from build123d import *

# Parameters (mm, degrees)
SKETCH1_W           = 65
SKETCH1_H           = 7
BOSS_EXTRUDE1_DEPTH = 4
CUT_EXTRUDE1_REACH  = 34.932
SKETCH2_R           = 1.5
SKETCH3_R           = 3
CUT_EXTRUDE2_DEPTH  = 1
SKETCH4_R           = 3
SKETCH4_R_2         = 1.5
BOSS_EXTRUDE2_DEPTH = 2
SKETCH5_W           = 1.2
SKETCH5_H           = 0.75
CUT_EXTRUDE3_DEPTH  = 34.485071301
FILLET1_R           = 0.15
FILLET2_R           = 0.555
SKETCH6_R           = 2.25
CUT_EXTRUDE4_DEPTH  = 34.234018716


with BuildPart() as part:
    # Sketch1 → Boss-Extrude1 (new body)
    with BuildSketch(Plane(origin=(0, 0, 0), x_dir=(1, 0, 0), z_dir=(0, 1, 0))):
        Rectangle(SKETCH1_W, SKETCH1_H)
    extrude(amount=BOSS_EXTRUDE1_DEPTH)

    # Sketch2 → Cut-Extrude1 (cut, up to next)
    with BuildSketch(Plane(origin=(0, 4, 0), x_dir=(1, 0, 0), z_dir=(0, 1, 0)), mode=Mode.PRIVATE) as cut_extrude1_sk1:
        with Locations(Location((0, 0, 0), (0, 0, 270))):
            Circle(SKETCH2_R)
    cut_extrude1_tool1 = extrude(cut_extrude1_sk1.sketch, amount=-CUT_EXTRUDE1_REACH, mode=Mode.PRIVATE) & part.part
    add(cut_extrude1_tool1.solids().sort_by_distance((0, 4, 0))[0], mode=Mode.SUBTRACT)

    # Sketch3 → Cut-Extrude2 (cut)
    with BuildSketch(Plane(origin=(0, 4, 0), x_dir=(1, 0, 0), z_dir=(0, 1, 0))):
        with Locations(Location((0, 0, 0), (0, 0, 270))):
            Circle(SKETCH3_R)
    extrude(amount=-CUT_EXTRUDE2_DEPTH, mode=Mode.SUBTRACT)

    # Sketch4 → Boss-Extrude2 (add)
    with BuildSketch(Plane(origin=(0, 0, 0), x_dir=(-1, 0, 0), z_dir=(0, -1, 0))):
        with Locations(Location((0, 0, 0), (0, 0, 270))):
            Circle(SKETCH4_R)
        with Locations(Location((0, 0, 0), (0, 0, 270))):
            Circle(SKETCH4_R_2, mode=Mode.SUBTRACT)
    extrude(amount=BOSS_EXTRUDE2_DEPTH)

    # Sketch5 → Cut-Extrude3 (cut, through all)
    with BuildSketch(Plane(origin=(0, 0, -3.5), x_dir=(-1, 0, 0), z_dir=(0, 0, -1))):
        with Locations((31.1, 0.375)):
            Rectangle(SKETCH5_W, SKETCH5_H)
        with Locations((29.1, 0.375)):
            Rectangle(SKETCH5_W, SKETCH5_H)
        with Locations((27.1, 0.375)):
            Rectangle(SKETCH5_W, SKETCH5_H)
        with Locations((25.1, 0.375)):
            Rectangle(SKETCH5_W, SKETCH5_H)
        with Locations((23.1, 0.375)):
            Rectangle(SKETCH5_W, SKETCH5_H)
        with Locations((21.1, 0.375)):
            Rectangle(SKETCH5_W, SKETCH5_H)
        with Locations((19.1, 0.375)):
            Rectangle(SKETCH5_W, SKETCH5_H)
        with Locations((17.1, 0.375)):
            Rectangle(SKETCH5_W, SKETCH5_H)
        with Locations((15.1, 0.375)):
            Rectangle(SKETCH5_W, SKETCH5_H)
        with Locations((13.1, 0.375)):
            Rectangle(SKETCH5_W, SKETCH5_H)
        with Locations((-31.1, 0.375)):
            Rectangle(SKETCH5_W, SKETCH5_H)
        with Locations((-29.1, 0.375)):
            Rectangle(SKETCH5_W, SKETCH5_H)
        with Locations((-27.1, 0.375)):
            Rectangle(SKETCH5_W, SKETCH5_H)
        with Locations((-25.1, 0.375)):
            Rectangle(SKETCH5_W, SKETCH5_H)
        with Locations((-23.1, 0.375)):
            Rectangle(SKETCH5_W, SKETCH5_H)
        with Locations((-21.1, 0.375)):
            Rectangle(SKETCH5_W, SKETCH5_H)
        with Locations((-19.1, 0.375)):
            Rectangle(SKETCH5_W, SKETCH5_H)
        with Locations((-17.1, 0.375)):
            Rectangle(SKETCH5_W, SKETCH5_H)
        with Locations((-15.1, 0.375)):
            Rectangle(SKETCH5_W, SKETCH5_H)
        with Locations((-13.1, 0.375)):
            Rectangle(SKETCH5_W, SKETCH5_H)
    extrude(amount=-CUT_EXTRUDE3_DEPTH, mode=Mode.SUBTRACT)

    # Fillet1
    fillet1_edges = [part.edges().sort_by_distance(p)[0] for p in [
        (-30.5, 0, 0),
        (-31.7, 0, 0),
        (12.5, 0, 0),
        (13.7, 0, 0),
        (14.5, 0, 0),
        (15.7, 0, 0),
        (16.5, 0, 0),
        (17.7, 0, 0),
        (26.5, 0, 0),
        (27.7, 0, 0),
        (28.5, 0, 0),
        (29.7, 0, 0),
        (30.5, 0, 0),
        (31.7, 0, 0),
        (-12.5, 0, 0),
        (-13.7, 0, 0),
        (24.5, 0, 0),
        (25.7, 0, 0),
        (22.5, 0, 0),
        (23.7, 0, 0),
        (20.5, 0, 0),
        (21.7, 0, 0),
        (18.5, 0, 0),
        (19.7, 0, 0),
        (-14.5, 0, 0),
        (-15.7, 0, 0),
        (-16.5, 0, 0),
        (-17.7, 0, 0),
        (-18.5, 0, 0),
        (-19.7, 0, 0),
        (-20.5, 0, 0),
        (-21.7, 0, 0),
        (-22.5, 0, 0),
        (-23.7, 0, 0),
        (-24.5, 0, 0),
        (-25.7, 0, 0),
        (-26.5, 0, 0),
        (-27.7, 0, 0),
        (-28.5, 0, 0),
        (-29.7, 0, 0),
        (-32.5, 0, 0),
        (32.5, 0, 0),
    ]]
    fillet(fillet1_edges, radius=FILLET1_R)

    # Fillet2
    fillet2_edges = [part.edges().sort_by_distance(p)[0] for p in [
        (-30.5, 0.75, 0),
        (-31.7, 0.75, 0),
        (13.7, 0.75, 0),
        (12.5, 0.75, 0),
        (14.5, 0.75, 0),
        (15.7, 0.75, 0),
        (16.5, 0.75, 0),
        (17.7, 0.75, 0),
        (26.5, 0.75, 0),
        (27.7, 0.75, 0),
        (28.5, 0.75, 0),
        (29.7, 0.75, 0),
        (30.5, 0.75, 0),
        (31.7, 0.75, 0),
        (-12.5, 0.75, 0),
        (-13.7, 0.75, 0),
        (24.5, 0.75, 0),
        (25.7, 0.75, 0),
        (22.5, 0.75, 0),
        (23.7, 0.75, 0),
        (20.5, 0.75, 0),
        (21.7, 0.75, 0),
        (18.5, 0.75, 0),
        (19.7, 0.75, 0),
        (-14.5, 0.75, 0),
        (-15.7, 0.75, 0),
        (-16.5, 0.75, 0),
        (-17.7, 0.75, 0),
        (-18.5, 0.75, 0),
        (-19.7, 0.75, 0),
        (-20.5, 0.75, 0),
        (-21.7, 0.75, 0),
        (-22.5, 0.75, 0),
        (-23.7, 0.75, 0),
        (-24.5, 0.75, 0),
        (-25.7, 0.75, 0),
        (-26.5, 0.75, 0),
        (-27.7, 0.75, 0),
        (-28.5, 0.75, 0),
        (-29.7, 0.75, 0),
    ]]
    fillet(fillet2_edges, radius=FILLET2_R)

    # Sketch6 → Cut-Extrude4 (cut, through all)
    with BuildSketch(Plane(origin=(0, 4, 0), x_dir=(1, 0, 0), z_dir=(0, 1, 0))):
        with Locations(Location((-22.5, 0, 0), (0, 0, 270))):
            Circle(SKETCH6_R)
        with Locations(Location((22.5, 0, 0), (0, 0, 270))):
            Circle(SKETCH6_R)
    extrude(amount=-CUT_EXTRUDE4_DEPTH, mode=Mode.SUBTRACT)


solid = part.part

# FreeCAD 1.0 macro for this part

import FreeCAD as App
import Part
import Sketcher


def edges_at(feature, points):
    """Names of the edges that pass closest to the given points."""
    edges = feature.Shape.Edges
    near = lambda p: min(range(len(edges)), key=lambda i: edges[i].distToShape(Part.Vertex(*p))[0])
    return sorted({f"Edge{near(p) + 1}" for p in points})

doc = App.newDocument("Part")
body = doc.addObject("PartDesign::Body", "Body")

# Sketch on XZ plane
sketch1 = body.newObject("Sketcher::SketchObject", "Sketch")
sketch1.AttachmentSupport = (doc.getObject("XZ_Plane"), [""])
sketch1.MapMode = "FlatFace"
sketch1.addGeometry([
    Part.LineSegment(App.Vector(-32, -4, 0), App.Vector(-32, 4, 0)),
    Part.LineSegment(App.Vector(-32, 4, 0), App.Vector(32, 4, 0)),
    Part.LineSegment(App.Vector(32, 4, 0), App.Vector(32, -4, 0)),
    Part.LineSegment(App.Vector(32, -4, 0), App.Vector(-32, -4, 0)),
], False)
sketch1.addConstraint([
    Sketcher.Constraint("Coincident", 0, 2, 1, 1),
    Sketcher.Constraint("Coincident", 1, 2, 2, 1),
    Sketcher.Constraint("Coincident", 2, 2, 3, 1),
    Sketcher.Constraint("Coincident", 3, 2, 0, 1),
    Sketcher.Constraint("Vertical", 0),
    Sketcher.Constraint("Horizontal", 1),
    Sketcher.Constraint("Vertical", 2),
    Sketcher.Constraint("Horizontal", 3),
    Sketcher.Constraint("Symmetric", 0, 2, 2, 2, -1, 1),
    Sketcher.Constraint("DistanceX", 1, 1, 1, 2, 65.0),
    Sketcher.Constraint("DistanceY", 0, 1, 0, 2, 7.0),
])
pad1 = body.newObject("PartDesign::Pad", "Pad")
pad1.Profile = sketch1
pad1.Length = 4
pad1.Reversed = True

# Sketch on XZ plane
sketch2 = body.newObject("Sketcher::SketchObject", "Sketch001")
sketch2.AttachmentSupport = (doc.getObject("XZ_Plane"), [""])
sketch2.MapMode = "FlatFace"
sketch2.AttachmentOffset = App.Placement(App.Vector(0, 0, -4), App.Rotation())
sketch2.addGeometry(Part.Circle(App.Vector(0, 0, 0), App.Vector(0, 0, 1), 1.5), False)
sketch2.addConstraint([
    Sketcher.Constraint("Coincident", 0, 3, -1, 1),
    Sketcher.Constraint("Diameter", 0, 3.0),
])
pocket1 = body.newObject("PartDesign::Pocket", "Pocket")
pocket1.Profile = sketch2
pocket1.Type = "UpToFirst"
pocket1.Reversed = True

# Sketch on XZ plane
sketch3 = body.newObject("Sketcher::SketchObject", "Sketch002")
sketch3.AttachmentSupport = (doc.getObject("XZ_Plane"), [""])
sketch3.MapMode = "FlatFace"
sketch3.AttachmentOffset = App.Placement(App.Vector(0, 0, -4), App.Rotation())
sketch3.addGeometry(Part.Circle(App.Vector(0, 0, 0), App.Vector(0, 0, 1), 3), False)
sketch3.addConstraint([
    Sketcher.Constraint("Coincident", 0, 3, -1, 1),
    Sketcher.Constraint("Diameter", 0, 6.0),
])
pocket2 = body.newObject("PartDesign::Pocket", "Pocket001")
pocket2.Profile = sketch3
pocket2.Length = 1
pocket2.Reversed = True

# Sketch on XZ plane
sketch4 = body.newObject("Sketcher::SketchObject", "Sketch003")
sketch4.AttachmentSupport = (doc.getObject("XZ_Plane"), [""])
sketch4.MapMode = "FlatFace"
sketch4.addGeometry([
    Part.Circle(App.Vector(0, 0, 0), App.Vector(0, 0, 1), 3),
    Part.Circle(App.Vector(0, 0, 0), App.Vector(0, 0, 1), 1.5),
], False)
sketch4.addConstraint([
    Sketcher.Constraint("Coincident", 0, 3, -1, 1),
    Sketcher.Constraint("Coincident", 1, 3, -1, 1),
    Sketcher.Constraint("Diameter", 0, 6.0),
    Sketcher.Constraint("Diameter", 1, 3.0),
])
pad2 = body.newObject("PartDesign::Pad", "Pad001")
pad2.Profile = sketch4
pad2.Length = 2

# Sketch on XY plane
sketch5 = body.newObject("Sketcher::SketchObject", "Sketch004")
sketch5.AttachmentSupport = (doc.getObject("XY_Plane"), [""])
sketch5.MapMode = "FlatFace"
sketch5.AttachmentOffset = App.Placement(App.Vector(0, 0, -3.5), App.Rotation())
sketch5.addGeometry([
    Part.LineSegment(App.Vector(-30.5, 0.8, 0), App.Vector(-30.5, 0, 0)),  # 0
    Part.LineSegment(App.Vector(-30.5, 0, 0), App.Vector(-31.7, 0, 0)),  # 1
    Part.LineSegment(App.Vector(-31.7, 0, 0), App.Vector(-31.7, 0.8, 0)),  # 2
    Part.LineSegment(App.Vector(-31.7, 0.8, 0), App.Vector(-30.5, 0.8, 0)),  # 3
    Part.LineSegment(App.Vector(-28.5, 0.8, 0), App.Vector(-28.5, 0, 0)),  # 4
    Part.LineSegment(App.Vector(-28.5, 0, 0), App.Vector(-29.7, 0, 0)),  # 5
    Part.LineSegment(App.Vector(-29.7, 0, 0), App.Vector(-29.7, 0.8, 0)),  # 6
    Part.LineSegment(App.Vector(-29.7, 0.8, 0), App.Vector(-28.5, 0.8, 0)),  # 7
    Part.LineSegment(App.Vector(-26.5, 0.8, 0), App.Vector(-26.5, 0, 0)),  # 8
    Part.LineSegment(App.Vector(-26.5, 0, 0), App.Vector(-27.7, 0, 0)),  # 9
    Part.LineSegment(App.Vector(-27.7, 0, 0), App.Vector(-27.7, 0.8, 0)),  # 10
    Part.LineSegment(App.Vector(-27.7, 0.8, 0), App.Vector(-26.5, 0.8, 0)),  # 11
    Part.LineSegment(App.Vector(-24.5, 0.8, 0), App.Vector(-24.5, 0, 0)),  # 12
    Part.LineSegment(App.Vector(-24.5, 0, 0), App.Vector(-25.7, 0, 0)),  # 13
    Part.LineSegment(App.Vector(-25.7, 0, 0), App.Vector(-25.7, 0.8, 0)),  # 14
    Part.LineSegment(App.Vector(-25.7, 0.8, 0), App.Vector(-24.5, 0.8, 0)),  # 15
    Part.LineSegment(App.Vector(-22.5, 0.8, 0), App.Vector(-22.5, 0, 0)),  # 16
    Part.LineSegment(App.Vector(-22.5, 0, 0), App.Vector(-23.7, 0, 0)),  # 17
    Part.LineSegment(App.Vector(-23.7, 0, 0), App.Vector(-23.7, 0.8, 0)),  # 18
    Part.LineSegment(App.Vector(-23.7, 0.8, 0), App.Vector(-22.5, 0.8, 0)),  # 19
    Part.LineSegment(App.Vector(-20.5, 0.8, 0), App.Vector(-20.5, 0, 0)),  # 20
    Part.LineSegment(App.Vector(-20.5, 0, 0), App.Vector(-21.7, 0, 0)),  # 21
    Part.LineSegment(App.Vector(-21.7, 0, 0), App.Vector(-21.7, 0.8, 0)),  # 22
    Part.LineSegment(App.Vector(-21.7, 0.8, 0), App.Vector(-20.5, 0.8, 0)),  # 23
    Part.LineSegment(App.Vector(-18.5, 0.8, 0), App.Vector(-18.5, 0, 0)),  # 24
    Part.LineSegment(App.Vector(-18.5, 0, 0), App.Vector(-19.7, 0, 0)),  # 25
    Part.LineSegment(App.Vector(-19.7, 0, 0), App.Vector(-19.7, 0.8, 0)),  # 26
    Part.LineSegment(App.Vector(-19.7, 0.8, 0), App.Vector(-18.5, 0.8, 0)),  # 27
    Part.LineSegment(App.Vector(-16.5, 0.8, 0), App.Vector(-16.5, 0, 0)),  # 28
    Part.LineSegment(App.Vector(-16.5, 0, 0), App.Vector(-17.7, 0, 0)),  # 29
    Part.LineSegment(App.Vector(-17.7, 0, 0), App.Vector(-17.7, 0.8, 0)),  # 30
    Part.LineSegment(App.Vector(-17.7, 0.8, 0), App.Vector(-16.5, 0.8, 0)),  # 31
    Part.LineSegment(App.Vector(-14.5, 0.8, 0), App.Vector(-14.5, 0, 0)),  # 32
    Part.LineSegment(App.Vector(-14.5, 0, 0), App.Vector(-15.7, 0, 0)),  # 33
    Part.LineSegment(App.Vector(-15.7, 0, 0), App.Vector(-15.7, 0.8, 0)),  # 34
    Part.LineSegment(App.Vector(-15.7, 0.8, 0), App.Vector(-14.5, 0.8, 0)),  # 35
    Part.LineSegment(App.Vector(-12.5, 0.8, 0), App.Vector(-12.5, 0, 0)),  # 36
    Part.LineSegment(App.Vector(-12.5, 0, 0), App.Vector(-13.7, 0, 0)),  # 37
    Part.LineSegment(App.Vector(-13.7, 0, 0), App.Vector(-13.7, 0.8, 0)),  # 38
    Part.LineSegment(App.Vector(-13.7, 0.8, 0), App.Vector(-12.5, 0.8, 0)),  # 39
    Part.LineSegment(App.Vector(31.7, 0.8, 0), App.Vector(31.7, 0, 0)),  # 40
    Part.LineSegment(App.Vector(31.7, 0, 0), App.Vector(30.5, 0, 0)),  # 41
    Part.LineSegment(App.Vector(30.5, 0, 0), App.Vector(30.5, 0.8, 0)),  # 42
    Part.LineSegment(App.Vector(30.5, 0.8, 0), App.Vector(31.7, 0.8, 0)),  # 43
    Part.LineSegment(App.Vector(29.7, 0.8, 0), App.Vector(29.7, 0, 0)),  # 44
    Part.LineSegment(App.Vector(29.7, 0, 0), App.Vector(28.5, 0, 0)),  # 45
    Part.LineSegment(App.Vector(28.5, 0, 0), App.Vector(28.5, 0.8, 0)),  # 46
    Part.LineSegment(App.Vector(28.5, 0.8, 0), App.Vector(29.7, 0.8, 0)),  # 47
    Part.LineSegment(App.Vector(27.7, 0.8, 0), App.Vector(27.7, 0, 0)),  # 48
    Part.LineSegment(App.Vector(27.7, 0, 0), App.Vector(26.5, 0, 0)),  # 49
    Part.LineSegment(App.Vector(26.5, 0, 0), App.Vector(26.5, 0.8, 0)),  # 50
    Part.LineSegment(App.Vector(26.5, 0.8, 0), App.Vector(27.7, 0.8, 0)),  # 51
    Part.LineSegment(App.Vector(25.7, 0.8, 0), App.Vector(25.7, 0, 0)),  # 52
    Part.LineSegment(App.Vector(25.7, 0, 0), App.Vector(24.5, 0, 0)),  # 53
    Part.LineSegment(App.Vector(24.5, 0, 0), App.Vector(24.5, 0.8, 0)),  # 54
    Part.LineSegment(App.Vector(24.5, 0.8, 0), App.Vector(25.7, 0.8, 0)),  # 55
    Part.LineSegment(App.Vector(23.7, 0.8, 0), App.Vector(23.7, 0, 0)),  # 56
    Part.LineSegment(App.Vector(23.7, 0, 0), App.Vector(22.5, 0, 0)),  # 57
    Part.LineSegment(App.Vector(22.5, 0, 0), App.Vector(22.5, 0.8, 0)),  # 58
    Part.LineSegment(App.Vector(22.5, 0.8, 0), App.Vector(23.7, 0.8, 0)),  # 59
    Part.LineSegment(App.Vector(21.7, 0.8, 0), App.Vector(21.7, 0, 0)),  # 60
    Part.LineSegment(App.Vector(21.7, 0, 0), App.Vector(20.5, 0, 0)),  # 61
    Part.LineSegment(App.Vector(20.5, 0, 0), App.Vector(20.5, 0.8, 0)),  # 62
    Part.LineSegment(App.Vector(20.5, 0.8, 0), App.Vector(21.7, 0.8, 0)),  # 63
    Part.LineSegment(App.Vector(19.7, 0.8, 0), App.Vector(19.7, 0, 0)),  # 64
    Part.LineSegment(App.Vector(19.7, 0, 0), App.Vector(18.5, 0, 0)),  # 65
    Part.LineSegment(App.Vector(18.5, 0, 0), App.Vector(18.5, 0.8, 0)),  # 66
    Part.LineSegment(App.Vector(18.5, 0.8, 0), App.Vector(19.7, 0.8, 0)),  # 67
    Part.LineSegment(App.Vector(17.7, 0.8, 0), App.Vector(17.7, 0, 0)),  # 68
    Part.LineSegment(App.Vector(17.7, 0, 0), App.Vector(16.5, 0, 0)),  # 69
    Part.LineSegment(App.Vector(16.5, 0, 0), App.Vector(16.5, 0.8, 0)),  # 70
    Part.LineSegment(App.Vector(16.5, 0.8, 0), App.Vector(17.7, 0.8, 0)),  # 71
    Part.LineSegment(App.Vector(15.7, 0.8, 0), App.Vector(15.7, 0, 0)),  # 72
    Part.LineSegment(App.Vector(15.7, 0, 0), App.Vector(14.5, 0, 0)),  # 73
    Part.LineSegment(App.Vector(14.5, 0, 0), App.Vector(14.5, 0.8, 0)),  # 74
    Part.LineSegment(App.Vector(14.5, 0.8, 0), App.Vector(15.7, 0.8, 0)),  # 75
    Part.LineSegment(App.Vector(13.7, 0.8, 0), App.Vector(13.7, 0, 0)),  # 76
    Part.LineSegment(App.Vector(13.7, 0, 0), App.Vector(12.5, 0, 0)),  # 77
    Part.LineSegment(App.Vector(12.5, 0, 0), App.Vector(12.5, 0.8, 0)),  # 78
    Part.LineSegment(App.Vector(12.5, 0.8, 0), App.Vector(13.7, 0.8, 0)),  # 79
], False)
sketch5.addConstraint([
    Sketcher.Constraint("Coincident", 0, 2, 1, 1),
    Sketcher.Constraint("Coincident", 1, 2, 2, 1),
    Sketcher.Constraint("Coincident", 2, 2, 3, 1),
    Sketcher.Constraint("Coincident", 3, 2, 0, 1),
    Sketcher.Constraint("Coincident", 4, 2, 5, 1),
    Sketcher.Constraint("Coincident", 5, 2, 6, 1),
    Sketcher.Constraint("Coincident", 6, 2, 7, 1),
    Sketcher.Constraint("Coincident", 7, 2, 4, 1),
    Sketcher.Constraint("Coincident", 8, 2, 9, 1),
    Sketcher.Constraint("Coincident", 9, 2, 10, 1),
    Sketcher.Constraint("Coincident", 10, 2, 11, 1),
    Sketcher.Constraint("Coincident", 11, 2, 8, 1),
    Sketcher.Constraint("Coincident", 12, 2, 13, 1),
    Sketcher.Constraint("Coincident", 13, 2, 14, 1),
    Sketcher.Constraint("Coincident", 14, 2, 15, 1),
    Sketcher.Constraint("Coincident", 15, 2, 12, 1),
    Sketcher.Constraint("Coincident", 16, 2, 17, 1),
    Sketcher.Constraint("Coincident", 17, 2, 18, 1),
    Sketcher.Constraint("Coincident", 18, 2, 19, 1),
    Sketcher.Constraint("Coincident", 19, 2, 16, 1),
    Sketcher.Constraint("Coincident", 20, 2, 21, 1),
    Sketcher.Constraint("Coincident", 21, 2, 22, 1),
    Sketcher.Constraint("Coincident", 22, 2, 23, 1),
    Sketcher.Constraint("Coincident", 23, 2, 20, 1),
    Sketcher.Constraint("Coincident", 24, 2, 25, 1),
    Sketcher.Constraint("Coincident", 25, 2, 26, 1),
    Sketcher.Constraint("Coincident", 26, 2, 27, 1),
    Sketcher.Constraint("Coincident", 27, 2, 24, 1),
    Sketcher.Constraint("Coincident", 28, 2, 29, 1),
    Sketcher.Constraint("Coincident", 29, 2, 30, 1),
    Sketcher.Constraint("Coincident", 30, 2, 31, 1),
    Sketcher.Constraint("Coincident", 31, 2, 28, 1),
    Sketcher.Constraint("Coincident", 32, 2, 33, 1),
    Sketcher.Constraint("Coincident", 33, 2, 34, 1),
    Sketcher.Constraint("Coincident", 34, 2, 35, 1),
    Sketcher.Constraint("Coincident", 35, 2, 32, 1),
    Sketcher.Constraint("Coincident", 36, 2, 37, 1),
    Sketcher.Constraint("Coincident", 37, 2, 38, 1),
    Sketcher.Constraint("Coincident", 38, 2, 39, 1),
    Sketcher.Constraint("Coincident", 39, 2, 36, 1),
    Sketcher.Constraint("Coincident", 40, 2, 41, 1),
    Sketcher.Constraint("Coincident", 41, 2, 42, 1),
    Sketcher.Constraint("Coincident", 42, 2, 43, 1),
    Sketcher.Constraint("Coincident", 43, 2, 40, 1),
    Sketcher.Constraint("Coincident", 44, 2, 45, 1),
    Sketcher.Constraint("Coincident", 45, 2, 46, 1),
    Sketcher.Constraint("Coincident", 46, 2, 47, 1),
    Sketcher.Constraint("Coincident", 47, 2, 44, 1),
    Sketcher.Constraint("Coincident", 48, 2, 49, 1),
    Sketcher.Constraint("Coincident", 49, 2, 50, 1),
    Sketcher.Constraint("Coincident", 50, 2, 51, 1),
    Sketcher.Constraint("Coincident", 51, 2, 48, 1),
    Sketcher.Constraint("Coincident", 52, 2, 53, 1),
    Sketcher.Constraint("Coincident", 53, 2, 54, 1),
    Sketcher.Constraint("Coincident", 54, 2, 55, 1),
    Sketcher.Constraint("Coincident", 55, 2, 52, 1),
    Sketcher.Constraint("Coincident", 56, 2, 57, 1),
    Sketcher.Constraint("Coincident", 57, 2, 58, 1),
    Sketcher.Constraint("Coincident", 58, 2, 59, 1),
    Sketcher.Constraint("Coincident", 59, 2, 56, 1),
    Sketcher.Constraint("Coincident", 60, 2, 61, 1),
    Sketcher.Constraint("Coincident", 61, 2, 62, 1),
    Sketcher.Constraint("Coincident", 62, 2, 63, 1),
    Sketcher.Constraint("Coincident", 63, 2, 60, 1),
    Sketcher.Constraint("Coincident", 64, 2, 65, 1),
    Sketcher.Constraint("Coincident", 65, 2, 66, 1),
    Sketcher.Constraint("Coincident", 66, 2, 67, 1),
    Sketcher.Constraint("Coincident", 67, 2, 64, 1),
    Sketcher.Constraint("Coincident", 68, 2, 69, 1),
    Sketcher.Constraint("Coincident", 69, 2, 70, 1),
    Sketcher.Constraint("Coincident", 70, 2, 71, 1),
    Sketcher.Constraint("Coincident", 71, 2, 68, 1),
    Sketcher.Constraint("Coincident", 72, 2, 73, 1),
    Sketcher.Constraint("Coincident", 73, 2, 74, 1),
    Sketcher.Constraint("Coincident", 74, 2, 75, 1),
    Sketcher.Constraint("Coincident", 75, 2, 72, 1),
    Sketcher.Constraint("Coincident", 76, 2, 77, 1),
    Sketcher.Constraint("Coincident", 77, 2, 78, 1),
    Sketcher.Constraint("Coincident", 78, 2, 79, 1),
    Sketcher.Constraint("Coincident", 79, 2, 76, 1),
    Sketcher.Constraint("Vertical", 0),
    Sketcher.Constraint("Horizontal", 1),
    Sketcher.Constraint("Vertical", 2),
    Sketcher.Constraint("Horizontal", 3),
    Sketcher.Constraint("Vertical", 4),
    Sketcher.Constraint("Horizontal", 5),
    Sketcher.Constraint("Vertical", 6),
    Sketcher.Constraint("Horizontal", 7),
    Sketcher.Constraint("Vertical", 8),
    Sketcher.Constraint("Horizontal", 9),
    Sketcher.Constraint("Vertical", 10),
    Sketcher.Constraint("Horizontal", 11),
    Sketcher.Constraint("Vertical", 12),
    Sketcher.Constraint("Horizontal", 13),
    Sketcher.Constraint("Vertical", 14),
    Sketcher.Constraint("Horizontal", 15),
    Sketcher.Constraint("Vertical", 16),
    Sketcher.Constraint("Horizontal", 17),
    Sketcher.Constraint("Vertical", 18),
    Sketcher.Constraint("Horizontal", 19),
    Sketcher.Constraint("Vertical", 20),
    Sketcher.Constraint("Horizontal", 21),
    Sketcher.Constraint("Vertical", 22),
    Sketcher.Constraint("Horizontal", 23),
    Sketcher.Constraint("Vertical", 24),
    Sketcher.Constraint("Horizontal", 25),
    Sketcher.Constraint("Vertical", 26),
    Sketcher.Constraint("Horizontal", 27),
    Sketcher.Constraint("Vertical", 28),
    Sketcher.Constraint("Horizontal", 29),
    Sketcher.Constraint("Vertical", 30),
    Sketcher.Constraint("Horizontal", 31),
    Sketcher.Constraint("Vertical", 32),
    Sketcher.Constraint("Horizontal", 33),
    Sketcher.Constraint("Vertical", 34),
    Sketcher.Constraint("Horizontal", 35),
    Sketcher.Constraint("Vertical", 36),
    Sketcher.Constraint("Horizontal", 37),
    Sketcher.Constraint("Vertical", 38),
    Sketcher.Constraint("Horizontal", 39),
    Sketcher.Constraint("Vertical", 40),
    Sketcher.Constraint("Horizontal", 41),
    Sketcher.Constraint("Vertical", 42),
    Sketcher.Constraint("Horizontal", 43),
    Sketcher.Constraint("Vertical", 44),
    Sketcher.Constraint("Horizontal", 45),
    Sketcher.Constraint("Vertical", 46),
    Sketcher.Constraint("Horizontal", 47),
    Sketcher.Constraint("Vertical", 48),
    Sketcher.Constraint("Horizontal", 49),
    Sketcher.Constraint("Vertical", 50),
    Sketcher.Constraint("Horizontal", 51),
    Sketcher.Constraint("Vertical", 52),
    Sketcher.Constraint("Horizontal", 53),
    Sketcher.Constraint("Vertical", 54),
    Sketcher.Constraint("Horizontal", 55),
    Sketcher.Constraint("Vertical", 56),
    Sketcher.Constraint("Horizontal", 57),
    Sketcher.Constraint("Vertical", 58),
    Sketcher.Constraint("Horizontal", 59),
    Sketcher.Constraint("Vertical", 60),
    Sketcher.Constraint("Horizontal", 61),
    Sketcher.Constraint("Vertical", 62),
    Sketcher.Constraint("Horizontal", 63),
    Sketcher.Constraint("Vertical", 64),
    Sketcher.Constraint("Horizontal", 65),
    Sketcher.Constraint("Vertical", 66),
    Sketcher.Constraint("Horizontal", 67),
    Sketcher.Constraint("Vertical", 68),
    Sketcher.Constraint("Horizontal", 69),
    Sketcher.Constraint("Vertical", 70),
    Sketcher.Constraint("Horizontal", 71),
    Sketcher.Constraint("Vertical", 72),
    Sketcher.Constraint("Horizontal", 73),
    Sketcher.Constraint("Vertical", 74),
    Sketcher.Constraint("Horizontal", 75),
    Sketcher.Constraint("Vertical", 76),
    Sketcher.Constraint("Horizontal", 77),
    Sketcher.Constraint("Vertical", 78),
    Sketcher.Constraint("Horizontal", 79),
    Sketcher.Constraint("Symmetric", 1, 2, 40, 2, -1, 1),
    Sketcher.Constraint("Symmetric", 5, 2, 44, 2, -1, 1),
    Sketcher.Constraint("Symmetric", 9, 2, 48, 2, -1, 1),
    Sketcher.Constraint("Symmetric", 13, 2, 52, 2, -1, 1),
    Sketcher.Constraint("Symmetric", 17, 2, 56, 2, -1, 1),
    Sketcher.Constraint("Symmetric", 21, 2, 60, 2, -1, 1),
    Sketcher.Constraint("Symmetric", 25, 2, 64, 2, -1, 1),
    Sketcher.Constraint("Symmetric", 29, 2, 68, 2, -1, 1),
    Sketcher.Constraint("Symmetric", 33, 2, 72, 2, -1, 1),
    Sketcher.Constraint("Symmetric", 37, 2, 76, 2, -1, 1),
    Sketcher.Constraint("Symmetric", 0, 2, 41, 2, -2),
    Sketcher.Constraint("Symmetric", 4, 2, 45, 2, -2),
    Sketcher.Constraint("Symmetric", 8, 2, 49, 2, -2),
    Sketcher.Constraint("Symmetric", 12, 2, 53, 2, -2),
    Sketcher.Constraint("Symmetric", 16, 2, 57, 2, -2),
    Sketcher.Constraint("Symmetric", 20, 2, 61, 2, -2),
    Sketcher.Constraint("Symmetric", 24, 2, 65, 2, -2),
    Sketcher.Constraint("Symmetric", 28, 2, 69, 2, -2),
    Sketcher.Constraint("Symmetric", 32, 2, 73, 2, -2),
    Sketcher.Constraint("Symmetric", 36, 2, 77, 2, -2),
    Sketcher.Constraint("Horizontal", 3, 2, 6, 2),
    Sketcher.Constraint("Horizontal", 7, 2, 10, 2),
    Sketcher.Constraint("Horizontal", 11, 2, 14, 2),
    Sketcher.Constraint("Horizontal", 15, 2, 18, 2),
    Sketcher.Constraint("Horizontal", 19, 2, 22, 2),
    Sketcher.Constraint("Horizontal", 23, 2, 26, 2),
    Sketcher.Constraint("Horizontal", 27, 2, 30, 2),
    Sketcher.Constraint("Horizontal", 31, 2, 34, 2),
    Sketcher.Constraint("Horizontal", 35, 2, 38, 2),
    Sketcher.Constraint("Horizontal", 39, 2, 42, 2),
    Sketcher.Constraint("Horizontal", 43, 2, 46, 2),
    Sketcher.Constraint("Horizontal", 47, 2, 50, 2),
    Sketcher.Constraint("Horizontal", 51, 2, 54, 2),
    Sketcher.Constraint("Horizontal", 55, 2, 58, 2),
    Sketcher.Constraint("Horizontal", 59, 2, 62, 2),
    Sketcher.Constraint("Horizontal", 63, 2, 66, 2),
    Sketcher.Constraint("Horizontal", 67, 2, 70, 2),
    Sketcher.Constraint("Horizontal", 71, 2, 74, 2),
    Sketcher.Constraint("Horizontal", 75, 2, 78, 2),
    Sketcher.Constraint("Equal", 3, 5),
    Sketcher.Constraint("Equal", 7, 9),
    Sketcher.Constraint("Equal", 11, 13),
    Sketcher.Constraint("Equal", 15, 17),
    Sketcher.Constraint("Equal", 19, 21),
    Sketcher.Constraint("Equal", 23, 25),
    Sketcher.Constraint("Equal", 27, 29),
    Sketcher.Constraint("Equal", 31, 33),
    Sketcher.Constraint("Equal", 35, 37),
    Sketcher.Constraint("DistanceX", 1, 2, 1, 1, 1.2),
    Sketcher.Constraint("DistanceY", 0, 2, 0, 1, 0.75),
    Sketcher.Constraint("DistanceX", 0, 2, -1, 1, 30.5),
    Sketcher.Constraint("DistanceX", 4, 2, -1, 1, 28.5),
    Sketcher.Constraint("DistanceX", 8, 2, -1, 1, 26.5),
    Sketcher.Constraint("DistanceX", 12, 2, -1, 1, 24.5),
    Sketcher.Constraint("DistanceX", 16, 2, -1, 1, 22.5),
    Sketcher.Constraint("DistanceX", 20, 2, -1, 1, 20.5),
    Sketcher.Constraint("DistanceX", 24, 2, -1, 1, 18.5),
    Sketcher.Constraint("DistanceX", 28, 2, -1, 1, 16.5),
    Sketcher.Constraint("DistanceX", 32, 2, -1, 1, 14.5),
    Sketcher.Constraint("DistanceX", 36, 2, -1, 1, 12.5),
])
pocket3 = body.newObject("PartDesign::Pocket", "Pocket002")
pocket3.Profile = sketch5
pocket3.Type = "ThroughAll"
pocket3.Reversed = True
doc.recompute()

fillet = body.newObject("PartDesign::Fillet", "Fillet")
fillet.Base = (pocket3, edges_at(pocket3, [
    (-30.5, 0, 0),
    (-31.7, 0, 0),
    (12.5, 0, 0),
    (13.7, 0, 0),
    (14.5, 0, 0),
    (15.7, 0, 0),
    (16.5, 0, 0),
    (17.7, 0, 0),
    (26.5, 0, 0),
    (27.7, 0, 0),
    (28.5, 0, 0),
    (29.7, 0, 0),
    (30.5, 0, 0),
    (31.7, 0, 0),
    (-12.5, 0, 0),
    (-13.7, 0, 0),
    (24.5, 0, 0),
    (25.7, 0, 0),
    (22.5, 0, 0),
    (23.7, 0, 0),
    (20.5, 0, 0),
    (21.7, 0, 0),
    (18.5, 0, 0),
    (19.7, 0, 0),
    (-14.5, 0, 0),
    (-15.7, 0, 0),
    (-16.5, 0, 0),
    (-17.7, 0, 0),
    (-18.5, 0, 0),
    (-19.7, 0, 0),
    (-20.5, 0, 0),
    (-21.7, 0, 0),
    (-22.5, 0, 0),
    (-23.7, 0, 0),
    (-24.5, 0, 0),
    (-25.7, 0, 0),
    (-26.5, 0, 0),
    (-27.7, 0, 0),
    (-28.5, 0, 0),
    (-29.7, 0, 0),
    (-32.5, 0, 0),
    (32.5, 0, 0),
]))
fillet.Radius = 0.15
doc.recompute()

fillet2 = body.newObject("PartDesign::Fillet", "Fillet001")
fillet2.Base = (fillet, edges_at(fillet, [
    (-30.5, 0.75, 0),
    (-31.7, 0.75, 0),
    (13.7, 0.75, 0),
    (12.5, 0.75, 0),
    (14.5, 0.75, 0),
    (15.7, 0.75, 0),
    (16.5, 0.75, 0),
    (17.7, 0.75, 0),
    (26.5, 0.75, 0),
    (27.7, 0.75, 0),
    (28.5, 0.75, 0),
    (29.7, 0.75, 0),
    (30.5, 0.75, 0),
    (31.7, 0.75, 0),
    (-12.5, 0.75, 0),
    (-13.7, 0.75, 0),
    (24.5, 0.75, 0),
    (25.7, 0.75, 0),
    (22.5, 0.75, 0),
    (23.7, 0.75, 0),
    (20.5, 0.75, 0),
    (21.7, 0.75, 0),
    (18.5, 0.75, 0),
    (19.7, 0.75, 0),
    (-14.5, 0.75, 0),
    (-15.7, 0.75, 0),
    (-16.5, 0.75, 0),
    (-17.7, 0.75, 0),
    (-18.5, 0.75, 0),
    (-19.7, 0.75, 0),
    (-20.5, 0.75, 0),
    (-21.7, 0.75, 0),
    (-22.5, 0.75, 0),
    (-23.7, 0.75, 0),
    (-24.5, 0.75, 0),
    (-25.7, 0.75, 0),
    (-26.5, 0.75, 0),
    (-27.7, 0.75, 0),
    (-28.5, 0.75, 0),
    (-29.7, 0.75, 0),
]))
fillet2.Radius = 0.555

# Sketch on XZ plane
sketch6 = body.newObject("Sketcher::SketchObject", "Sketch005")
sketch6.AttachmentSupport = (doc.getObject("XZ_Plane"), [""])
sketch6.MapMode = "FlatFace"
sketch6.AttachmentOffset = App.Placement(App.Vector(0, 0, -4), App.Rotation())
sketch6.addGeometry([
    Part.Circle(App.Vector(-22.5, 0, 0), App.Vector(0, 0, 1), 2.2),
    Part.Circle(App.Vector(22.5, 0, 0), App.Vector(0, 0, 1), 2.2),
], False)
sketch6.addConstraint([
    Sketcher.Constraint("Equal", 0, 1),
    Sketcher.Constraint("Symmetric", 0, 3, 1, 3, -1, 1),
    Sketcher.Constraint("PointOnObject", 0, 3, -1),
    Sketcher.Constraint("Diameter", 0, 4.5),
    Sketcher.Constraint("DistanceX", 0, 3, 1, 3, 45.0),
])
pocket4 = body.newObject("PartDesign::Pocket", "Pocket003")
pocket4.Profile = sketch6
pocket4.Type = "ThroughAll"
pocket4.Reversed = True

doc.recompute()
